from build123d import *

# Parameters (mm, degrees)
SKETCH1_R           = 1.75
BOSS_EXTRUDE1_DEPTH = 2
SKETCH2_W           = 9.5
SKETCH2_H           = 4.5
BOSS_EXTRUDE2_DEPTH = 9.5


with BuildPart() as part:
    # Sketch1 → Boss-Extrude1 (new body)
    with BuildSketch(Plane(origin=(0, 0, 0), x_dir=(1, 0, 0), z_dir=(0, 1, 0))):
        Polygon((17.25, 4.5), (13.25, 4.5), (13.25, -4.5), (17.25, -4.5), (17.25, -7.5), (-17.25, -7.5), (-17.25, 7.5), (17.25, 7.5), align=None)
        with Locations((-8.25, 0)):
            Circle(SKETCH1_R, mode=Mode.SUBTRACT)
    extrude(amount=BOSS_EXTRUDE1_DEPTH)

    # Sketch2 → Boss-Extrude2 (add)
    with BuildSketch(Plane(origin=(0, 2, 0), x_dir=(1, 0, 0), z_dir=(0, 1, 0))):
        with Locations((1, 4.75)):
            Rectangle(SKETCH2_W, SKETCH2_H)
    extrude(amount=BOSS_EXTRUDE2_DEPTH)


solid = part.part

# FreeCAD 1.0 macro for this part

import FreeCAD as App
import Part
import Sketcher

V = App.Vector
Q = App.Units.Quantity

doc = App.newDocument("Part")
body = doc.addObject("PartDesign::Body", "Body")

sketch1 = body.newObject("Sketcher::SketchObject", "Sketch")
sketch1.AttachmentSupport = (doc.getObject("XZ_Plane"), [""])
sketch1.MapMode = "FlatFace"
sketch1.addGeometry(Part.LineSegment(V(13.2, -4.5, 0), V(17.2, -4.5, 0)), False)
sketch1.addGeometry(Part.LineSegment(V(17.2, -4.5, 0), V(17.2, -7.5, 0)), False)
sketch1.addGeometry(Part.LineSegment(V(17.2, -7.5, 0), V(-17.2, -7.5, 0)), False)
sketch1.addGeometry(Part.LineSegment(V(-17.2, -7.5, 0), V(-17.2, 7.5, 0)), False)
sketch1.addGeometry(Part.LineSegment(V(-17.2, 7.5, 0), V(17.2, 7.5, 0)), False)
sketch1.addGeometry(Part.LineSegment(V(17.2, 7.5, 0), V(17.2, 4.5, 0)), False)
sketch1.addGeometry(Part.LineSegment(V(17.2, 4.5, 0), V(13.2, 4.5, 0)), False)
sketch1.addGeometry(Part.LineSegment(V(13.2, 4.5, 0), V(13.2, -4.5, 0)), False)
sketch1.addGeometry(Part.Circle(V(-8.2, 0, 0), V(0, 0, 1), 1.8), False)
sketch1.addConstraint(Sketcher.Constraint("Coincident", 0, 2, 1, 1))
sketch1.addConstraint(Sketcher.Constraint("Coincident", 1, 2, 2, 1))
sketch1.addConstraint(Sketcher.Constraint("Coincident", 2, 2, 3, 1))
sketch1.addConstraint(Sketcher.Constraint("Coincident", 3, 2, 4, 1))
sketch1.addConstraint(Sketcher.Constraint("Coincident", 4, 2, 5, 1))
sketch1.addConstraint(Sketcher.Constraint("Coincident", 5, 2, 6, 1))
sketch1.addConstraint(Sketcher.Constraint("Coincident", 6, 2, 7, 1))
sketch1.addConstraint(Sketcher.Constraint("Coincident", 7, 2, 0, 1))
sketch1.addConstraint(Sketcher.Constraint("Horizontal", 0))
sketch1.addConstraint(Sketcher.Constraint("Vertical", 1))
sketch1.addConstraint(Sketcher.Constraint("Horizontal", 2))
sketch1.addConstraint(Sketcher.Constraint("Vertical", 3))
sketch1.addConstraint(Sketcher.Constraint("Horizontal", 4))
sketch1.addConstraint(Sketcher.Constraint("Vertical", 5))
sketch1.addConstraint(Sketcher.Constraint("Horizontal", 6))
sketch1.addConstraint(Sketcher.Constraint("Vertical", 7))
sketch1.addConstraint(Sketcher.Constraint("Symmetric", 1, 2, 3, 2, -1, 1))
sketch1.addConstraint(Sketcher.Constraint("Symmetric", 0, 2, 5, 2, -1))
sketch1.addConstraint(Sketcher.Constraint("PointOnObject", 8, 3, -1))
sketch1.addConstraint(Sketcher.Constraint("Diameter", 8, Q("3.5 mm")))
sketch1.addConstraint(Sketcher.Constraint("DistanceX", 0, 1, 0, 2, Q("4 mm")))
sketch1.addConstraint(Sketcher.Constraint("DistanceY", 1, 2, 1, 1, Q("3 mm")))
sketch1.addConstraint(Sketcher.Constraint("DistanceY", 3, 1, 3, 2, Q("15 mm")))
sketch1.addConstraint(Sketcher.Constraint("DistanceX", 2, 2, 2, 1, Q("34.5 mm")))
sketch1.addConstraint(Sketcher.Constraint("DistanceX", 2, 2, 8, 3, Q("9 mm")))
pad1 = body.newObject("PartDesign::Pad", "Pad")
pad1.Profile = sketch1
pad1.Length = 2
pad1.Reversed = True

sketch2 = body.newObject("Sketcher::SketchObject", "Sketch001")
sketch2.AttachmentSupport = (doc.getObject("XZ_Plane"), [""])
sketch2.MapMode = "FlatFace"
sketch2.AttachmentOffset = App.Placement(V(0, 0, -2), App.Rotation())
sketch2.addGeometry(Part.LineSegment(V(-3.8, -7, 0), V(-3.8, -2.5, 0)), False)
sketch2.addGeometry(Part.LineSegment(V(-3.8, -2.5, 0), V(5.8, -2.5, 0)), False)
sketch2.addGeometry(Part.LineSegment(V(5.8, -2.5, 0), V(5.8, -7, 0)), False)
sketch2.addGeometry(Part.LineSegment(V(5.8, -7, 0), V(-3.8, -7, 0)), False)
sketch2.addConstraint(Sketcher.Constraint("Coincident", 0, 2, 1, 1))
sketch2.addConstraint(Sketcher.Constraint("Coincident", 1, 2, 2, 1))
sketch2.addConstraint(Sketcher.Constraint("Coincident", 2, 2, 3, 1))
sketch2.addConstraint(Sketcher.Constraint("Coincident", 3, 2, 0, 1))
sketch2.addConstraint(Sketcher.Constraint("Vertical", 0))
sketch2.addConstraint(Sketcher.Constraint("Horizontal", 1))
sketch2.addConstraint(Sketcher.Constraint("Vertical", 2))
sketch2.addConstraint(Sketcher.Constraint("Horizontal", 3))
sketch2.addConstraint(Sketcher.Constraint("DistanceX", 1, 1, 1, 2, Q("9.5 mm")))
sketch2.addConstraint(Sketcher.Constraint("DistanceY", 0, 1, 0, 2, Q("4.5 mm")))
sketch2.addConstraint(Sketcher.Constraint("DistanceY", 2, 2, -1, 1, Q("7 mm")))
sketch2.addConstraint(Sketcher.Constraint("DistanceX", 0, 2, -1, 1, Q("3.75 mm")))
pad2 = body.newObject("PartDesign::Pad", "Pad001")
pad2.Profile = sketch2
pad2.Length = 9.5
pad2.Reversed = True

doc.recompute()
